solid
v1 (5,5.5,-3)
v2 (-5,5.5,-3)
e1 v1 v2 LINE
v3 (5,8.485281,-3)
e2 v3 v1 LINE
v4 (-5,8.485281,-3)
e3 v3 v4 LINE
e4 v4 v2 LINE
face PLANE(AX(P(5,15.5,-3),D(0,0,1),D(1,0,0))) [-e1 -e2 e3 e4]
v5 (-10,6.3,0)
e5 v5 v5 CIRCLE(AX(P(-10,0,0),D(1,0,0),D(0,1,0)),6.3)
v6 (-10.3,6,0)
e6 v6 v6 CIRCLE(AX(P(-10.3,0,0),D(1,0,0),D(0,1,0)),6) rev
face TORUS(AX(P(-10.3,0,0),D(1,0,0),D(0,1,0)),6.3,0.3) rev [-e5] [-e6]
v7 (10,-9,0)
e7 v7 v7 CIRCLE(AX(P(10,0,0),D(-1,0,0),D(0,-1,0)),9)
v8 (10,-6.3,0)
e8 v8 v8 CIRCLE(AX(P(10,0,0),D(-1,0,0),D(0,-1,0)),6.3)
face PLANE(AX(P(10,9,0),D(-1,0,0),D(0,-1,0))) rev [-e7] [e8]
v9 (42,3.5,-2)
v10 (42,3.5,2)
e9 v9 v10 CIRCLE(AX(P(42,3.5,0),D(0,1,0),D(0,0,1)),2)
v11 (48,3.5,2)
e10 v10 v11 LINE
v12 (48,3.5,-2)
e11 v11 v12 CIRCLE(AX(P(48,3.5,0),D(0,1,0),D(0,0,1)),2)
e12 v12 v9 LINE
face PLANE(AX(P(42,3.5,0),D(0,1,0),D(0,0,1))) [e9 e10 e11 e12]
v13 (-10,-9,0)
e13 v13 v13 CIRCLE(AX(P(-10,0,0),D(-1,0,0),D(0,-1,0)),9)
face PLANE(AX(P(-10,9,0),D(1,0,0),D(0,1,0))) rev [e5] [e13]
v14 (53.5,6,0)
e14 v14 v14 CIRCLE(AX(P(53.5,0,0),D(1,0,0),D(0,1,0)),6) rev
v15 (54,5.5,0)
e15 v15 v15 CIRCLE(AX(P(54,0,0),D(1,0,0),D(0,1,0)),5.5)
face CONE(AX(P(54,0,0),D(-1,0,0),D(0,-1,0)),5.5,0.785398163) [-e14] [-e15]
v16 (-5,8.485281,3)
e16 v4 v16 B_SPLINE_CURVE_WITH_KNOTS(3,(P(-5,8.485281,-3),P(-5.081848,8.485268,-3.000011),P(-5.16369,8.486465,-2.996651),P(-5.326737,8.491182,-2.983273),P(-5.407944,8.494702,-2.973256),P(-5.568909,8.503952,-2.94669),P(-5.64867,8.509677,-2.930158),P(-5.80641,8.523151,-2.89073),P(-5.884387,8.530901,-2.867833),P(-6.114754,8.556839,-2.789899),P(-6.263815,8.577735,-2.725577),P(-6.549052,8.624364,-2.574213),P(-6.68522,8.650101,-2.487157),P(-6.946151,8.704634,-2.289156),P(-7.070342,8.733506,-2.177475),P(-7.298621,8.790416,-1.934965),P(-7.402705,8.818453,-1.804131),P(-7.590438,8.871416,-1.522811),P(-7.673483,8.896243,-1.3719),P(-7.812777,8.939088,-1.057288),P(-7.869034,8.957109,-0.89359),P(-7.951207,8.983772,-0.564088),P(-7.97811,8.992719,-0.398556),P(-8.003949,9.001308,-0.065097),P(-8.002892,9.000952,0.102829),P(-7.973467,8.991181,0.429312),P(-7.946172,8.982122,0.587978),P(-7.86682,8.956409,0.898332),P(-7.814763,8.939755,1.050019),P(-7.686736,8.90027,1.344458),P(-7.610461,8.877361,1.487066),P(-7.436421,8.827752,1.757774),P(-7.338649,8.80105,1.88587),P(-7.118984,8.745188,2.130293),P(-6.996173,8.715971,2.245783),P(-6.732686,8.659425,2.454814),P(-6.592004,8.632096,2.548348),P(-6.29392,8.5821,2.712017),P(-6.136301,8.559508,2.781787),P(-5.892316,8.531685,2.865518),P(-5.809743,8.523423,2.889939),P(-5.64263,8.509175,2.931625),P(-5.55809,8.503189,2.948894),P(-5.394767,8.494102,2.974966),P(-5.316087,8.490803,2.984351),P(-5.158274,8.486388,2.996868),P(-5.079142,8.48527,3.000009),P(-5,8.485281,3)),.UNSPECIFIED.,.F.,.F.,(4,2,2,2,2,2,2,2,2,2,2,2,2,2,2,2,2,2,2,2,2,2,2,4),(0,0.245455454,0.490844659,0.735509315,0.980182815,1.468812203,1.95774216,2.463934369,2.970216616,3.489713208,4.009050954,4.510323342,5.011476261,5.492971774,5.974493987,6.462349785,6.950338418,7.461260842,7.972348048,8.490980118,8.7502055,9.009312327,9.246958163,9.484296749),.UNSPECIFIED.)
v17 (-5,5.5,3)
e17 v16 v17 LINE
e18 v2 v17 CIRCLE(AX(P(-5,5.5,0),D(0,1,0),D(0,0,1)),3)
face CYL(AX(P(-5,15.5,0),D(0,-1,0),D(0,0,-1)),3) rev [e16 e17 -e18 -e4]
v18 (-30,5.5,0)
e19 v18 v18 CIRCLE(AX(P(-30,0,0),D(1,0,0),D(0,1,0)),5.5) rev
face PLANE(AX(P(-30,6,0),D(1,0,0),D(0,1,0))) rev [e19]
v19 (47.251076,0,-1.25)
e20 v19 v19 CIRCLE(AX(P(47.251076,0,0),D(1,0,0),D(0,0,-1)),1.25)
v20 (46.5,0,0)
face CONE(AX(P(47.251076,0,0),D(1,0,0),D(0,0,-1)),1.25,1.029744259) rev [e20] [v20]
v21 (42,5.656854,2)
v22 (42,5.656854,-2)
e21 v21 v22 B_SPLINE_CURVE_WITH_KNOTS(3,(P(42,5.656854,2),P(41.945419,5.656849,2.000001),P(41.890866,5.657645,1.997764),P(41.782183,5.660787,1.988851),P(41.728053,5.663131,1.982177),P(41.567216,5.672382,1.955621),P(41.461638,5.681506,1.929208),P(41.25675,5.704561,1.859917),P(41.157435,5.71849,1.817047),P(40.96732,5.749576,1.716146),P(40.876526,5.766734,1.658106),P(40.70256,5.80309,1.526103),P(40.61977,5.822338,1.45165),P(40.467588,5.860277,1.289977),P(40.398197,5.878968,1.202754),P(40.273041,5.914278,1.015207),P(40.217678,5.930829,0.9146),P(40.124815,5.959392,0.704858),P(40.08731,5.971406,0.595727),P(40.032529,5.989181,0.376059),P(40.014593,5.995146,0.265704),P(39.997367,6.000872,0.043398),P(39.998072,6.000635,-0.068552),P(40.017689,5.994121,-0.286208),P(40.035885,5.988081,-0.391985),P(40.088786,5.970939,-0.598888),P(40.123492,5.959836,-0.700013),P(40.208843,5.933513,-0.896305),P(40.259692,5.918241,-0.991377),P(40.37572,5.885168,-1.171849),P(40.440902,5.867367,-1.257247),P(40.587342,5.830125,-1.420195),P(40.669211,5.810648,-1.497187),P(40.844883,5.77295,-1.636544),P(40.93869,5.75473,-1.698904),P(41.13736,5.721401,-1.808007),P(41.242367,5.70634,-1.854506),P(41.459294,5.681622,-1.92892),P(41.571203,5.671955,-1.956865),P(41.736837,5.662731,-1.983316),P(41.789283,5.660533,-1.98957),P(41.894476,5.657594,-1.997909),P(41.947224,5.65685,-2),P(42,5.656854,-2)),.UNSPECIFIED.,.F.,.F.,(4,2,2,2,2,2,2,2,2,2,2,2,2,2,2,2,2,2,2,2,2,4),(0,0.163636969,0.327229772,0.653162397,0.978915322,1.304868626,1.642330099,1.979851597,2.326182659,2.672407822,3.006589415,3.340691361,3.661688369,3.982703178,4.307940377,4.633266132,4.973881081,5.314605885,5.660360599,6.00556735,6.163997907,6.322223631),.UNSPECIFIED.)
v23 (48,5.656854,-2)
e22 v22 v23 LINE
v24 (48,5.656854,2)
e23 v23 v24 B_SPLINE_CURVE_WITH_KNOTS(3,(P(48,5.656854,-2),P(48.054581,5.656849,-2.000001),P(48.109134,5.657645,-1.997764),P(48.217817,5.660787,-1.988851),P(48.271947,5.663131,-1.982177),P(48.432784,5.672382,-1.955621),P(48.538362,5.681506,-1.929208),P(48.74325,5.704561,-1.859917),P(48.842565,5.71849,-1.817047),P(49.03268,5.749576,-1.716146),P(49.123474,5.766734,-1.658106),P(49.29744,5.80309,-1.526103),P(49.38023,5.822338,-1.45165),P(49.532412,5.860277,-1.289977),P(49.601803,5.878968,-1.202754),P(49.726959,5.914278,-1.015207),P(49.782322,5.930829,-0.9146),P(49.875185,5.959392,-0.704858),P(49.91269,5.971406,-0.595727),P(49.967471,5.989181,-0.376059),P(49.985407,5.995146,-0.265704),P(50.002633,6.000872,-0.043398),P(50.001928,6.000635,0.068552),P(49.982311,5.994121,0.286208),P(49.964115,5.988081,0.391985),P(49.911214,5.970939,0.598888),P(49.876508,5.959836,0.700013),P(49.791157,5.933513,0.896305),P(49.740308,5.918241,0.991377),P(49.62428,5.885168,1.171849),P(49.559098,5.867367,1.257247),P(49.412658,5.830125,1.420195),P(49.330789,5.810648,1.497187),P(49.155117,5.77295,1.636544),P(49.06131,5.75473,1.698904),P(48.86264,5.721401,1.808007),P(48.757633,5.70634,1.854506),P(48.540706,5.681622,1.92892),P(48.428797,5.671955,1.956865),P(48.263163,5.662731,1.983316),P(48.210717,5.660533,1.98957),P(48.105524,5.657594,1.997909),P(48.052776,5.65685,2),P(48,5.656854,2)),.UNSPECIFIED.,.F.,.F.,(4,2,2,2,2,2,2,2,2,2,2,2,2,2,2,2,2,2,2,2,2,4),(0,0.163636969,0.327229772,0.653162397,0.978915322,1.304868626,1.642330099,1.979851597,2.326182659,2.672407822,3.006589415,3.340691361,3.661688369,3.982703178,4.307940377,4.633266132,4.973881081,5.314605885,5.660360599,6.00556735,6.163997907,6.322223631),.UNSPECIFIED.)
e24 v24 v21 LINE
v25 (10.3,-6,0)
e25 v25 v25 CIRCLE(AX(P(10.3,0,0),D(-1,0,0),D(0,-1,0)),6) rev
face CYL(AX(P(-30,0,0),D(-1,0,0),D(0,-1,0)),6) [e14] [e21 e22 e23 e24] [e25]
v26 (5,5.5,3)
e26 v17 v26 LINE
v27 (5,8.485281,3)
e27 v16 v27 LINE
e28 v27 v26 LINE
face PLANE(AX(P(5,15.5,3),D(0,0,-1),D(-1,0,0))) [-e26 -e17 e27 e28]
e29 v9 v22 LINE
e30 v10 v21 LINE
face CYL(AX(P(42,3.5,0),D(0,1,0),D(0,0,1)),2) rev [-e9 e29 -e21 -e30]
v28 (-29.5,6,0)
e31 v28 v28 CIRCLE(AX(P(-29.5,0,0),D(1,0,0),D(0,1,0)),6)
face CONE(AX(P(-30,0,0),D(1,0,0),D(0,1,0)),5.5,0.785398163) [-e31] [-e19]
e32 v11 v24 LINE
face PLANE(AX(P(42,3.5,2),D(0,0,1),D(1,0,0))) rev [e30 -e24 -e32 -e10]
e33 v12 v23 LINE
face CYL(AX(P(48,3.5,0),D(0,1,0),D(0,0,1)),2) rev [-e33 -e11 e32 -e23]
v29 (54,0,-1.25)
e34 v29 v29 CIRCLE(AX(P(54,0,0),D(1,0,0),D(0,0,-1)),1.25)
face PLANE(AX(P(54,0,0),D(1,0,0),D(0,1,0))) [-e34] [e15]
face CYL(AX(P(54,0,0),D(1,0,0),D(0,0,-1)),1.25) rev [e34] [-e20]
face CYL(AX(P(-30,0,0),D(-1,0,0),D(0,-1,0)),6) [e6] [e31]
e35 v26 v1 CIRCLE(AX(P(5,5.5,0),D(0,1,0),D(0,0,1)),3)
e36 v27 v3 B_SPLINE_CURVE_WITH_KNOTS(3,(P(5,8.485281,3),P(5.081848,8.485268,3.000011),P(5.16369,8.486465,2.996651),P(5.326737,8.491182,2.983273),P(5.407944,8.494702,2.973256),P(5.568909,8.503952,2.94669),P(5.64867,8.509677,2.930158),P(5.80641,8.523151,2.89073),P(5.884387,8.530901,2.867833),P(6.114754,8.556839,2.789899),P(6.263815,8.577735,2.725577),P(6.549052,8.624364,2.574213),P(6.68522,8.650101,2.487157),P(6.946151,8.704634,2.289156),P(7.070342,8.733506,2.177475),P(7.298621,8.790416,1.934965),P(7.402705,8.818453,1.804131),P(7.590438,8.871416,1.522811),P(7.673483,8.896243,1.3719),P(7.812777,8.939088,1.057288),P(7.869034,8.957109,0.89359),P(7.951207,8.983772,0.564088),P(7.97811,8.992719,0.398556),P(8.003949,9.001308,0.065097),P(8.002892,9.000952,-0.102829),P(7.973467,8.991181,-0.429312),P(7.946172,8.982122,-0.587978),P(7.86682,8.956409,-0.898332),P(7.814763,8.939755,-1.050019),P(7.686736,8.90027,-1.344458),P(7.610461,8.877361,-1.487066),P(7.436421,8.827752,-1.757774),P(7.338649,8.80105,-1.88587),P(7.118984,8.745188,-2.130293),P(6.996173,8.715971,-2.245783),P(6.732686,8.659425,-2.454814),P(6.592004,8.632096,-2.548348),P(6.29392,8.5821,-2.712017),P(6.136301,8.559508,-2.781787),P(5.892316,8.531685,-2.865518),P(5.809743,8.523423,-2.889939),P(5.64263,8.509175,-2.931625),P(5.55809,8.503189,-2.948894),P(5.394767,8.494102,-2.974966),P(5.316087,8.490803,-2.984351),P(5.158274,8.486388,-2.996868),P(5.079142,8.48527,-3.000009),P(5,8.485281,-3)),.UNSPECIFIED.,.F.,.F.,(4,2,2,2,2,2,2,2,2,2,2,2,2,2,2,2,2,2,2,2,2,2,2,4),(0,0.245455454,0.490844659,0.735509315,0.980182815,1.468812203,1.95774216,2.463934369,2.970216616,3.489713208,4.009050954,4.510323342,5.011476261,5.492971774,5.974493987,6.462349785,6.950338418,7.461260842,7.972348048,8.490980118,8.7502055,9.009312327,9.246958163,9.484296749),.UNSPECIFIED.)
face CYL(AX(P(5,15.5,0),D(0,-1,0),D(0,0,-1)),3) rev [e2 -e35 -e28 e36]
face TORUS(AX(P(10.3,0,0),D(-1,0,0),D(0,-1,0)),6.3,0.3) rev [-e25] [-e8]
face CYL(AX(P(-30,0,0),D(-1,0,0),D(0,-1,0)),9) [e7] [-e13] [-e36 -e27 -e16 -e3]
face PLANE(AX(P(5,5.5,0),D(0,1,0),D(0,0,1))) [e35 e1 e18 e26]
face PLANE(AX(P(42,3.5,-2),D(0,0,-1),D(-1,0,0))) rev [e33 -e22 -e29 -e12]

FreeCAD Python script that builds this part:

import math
import FreeCAD as App
import Part
import Sketcher

V = App.Vector


def edges_at(feature, points):
    """Names of the edges that pass closest to the given points."""
    edges = feature.Shape.Edges
    near = lambda p: min(range(len(edges)), key=lambda i: edges[i].distToShape(Part.Vertex(*p))[0])
    return sorted({f"Edge{near(p) + 1}" for p in points})

doc = App.newDocument("Part")
body = doc.addObject("PartDesign::Body", "Body")

# Sketch on XY plane
sketch1 = doc.addObject("Sketcher::SketchObject", "Sketch")
body.addObject(sketch1)
sketch1.AttachmentSupport = (doc.XY_Plane, [""])
sketch1.MapMode = "FlatFace"
sketch1.addGeometry([
    Part.LineSegment(V(10, 9, 0), V(-10, 9, 0)),  # 0
    Part.LineSegment(V(-10, 9, 0), V(-10, 6, 0)),  # 1
    Part.LineSegment(V(-10, 6, 0), V(-30, 6, 0)),  # 2
    Part.LineSegment(V(-30, 6, 0), V(-30, 0, 0)),  # 3
    Part.LineSegment(V(-30, 0, 0), V(60, 0, 0)),  # 4
    Part.LineSegment(V(60, 0, 0), V(60, 6, 0)),  # 5
    Part.LineSegment(V(60, 6, 0), V(10, 6, 0)),  # 6
    Part.LineSegment(V(10, 6, 0), V(10, 9, 0)),  # 7
], False)
sketch1.addConstraint([
    Sketcher.Constraint("Coincident", 0, 2, 1, 1),
    Sketcher.Constraint("Coincident", 1, 2, 2, 1),
    Sketcher.Constraint("Coincident", 2, 2, 3, 1),
    Sketcher.Constraint("Coincident", 3, 2, 4, 1),
    Sketcher.Constraint("Coincident", 4, 2, 5, 1),
    Sketcher.Constraint("Coincident", 5, 2, 6, 1),
    Sketcher.Constraint("Coincident", 6, 2, 7, 1),
    Sketcher.Constraint("Coincident", 7, 2, 0, 1),
    Sketcher.Constraint("Horizontal", 0),
    Sketcher.Constraint("Vertical", 1),
    Sketcher.Constraint("Horizontal", 2),
    Sketcher.Constraint("Vertical", 3),
    Sketcher.Constraint("Horizontal", 4),
    Sketcher.Constraint("Vertical", 5),
    Sketcher.Constraint("Horizontal", 6),
    Sketcher.Constraint("Vertical", 7),
    Sketcher.Constraint("Symmetric", 1, 2, 6, 2, -2),
    Sketcher.Constraint("PointOnObject", 3, 2, -1),
    Sketcher.Constraint("Equal", 0, 2),
    Sketcher.Constraint("DistanceX", 0, 2, 0, 1, 20.0),
    Sketcher.Constraint("DistanceX", 4, 1, 4, 2, 90.0),
    Sketcher.Constraint("DistanceY", 1, 2, 1, 1, 3.0),
    Sketcher.Constraint("DistanceY", 3, 2, 3, 1, 6.0),
])
revolution = doc.addObject("PartDesign::Revolution", "Revolution")
body.addObject(revolution)
revolution.Profile = sketch1
revolution.ReferenceAxis = (sketch1, ["H_Axis"])
revolution.Angle = 360

# Sketch on XZ plane
sketch2 = doc.addObject("Sketcher::SketchObject", "Sketch001")
body.addObject(sketch2)
sketch2.AttachmentSupport = (doc.XZ_Plane, [""])
sketch2.MapMode = "FlatFace"
sketch2.AttachmentOffset = App.Placement(V(0, 0, -5.5), App.Rotation())
sketch2.addGeometry([
    Part.LineSegment(V(-5, 3, 0), V(5, 3, 0)),
    Part.ArcOfCircle(Part.Circle(V(5, 0, 0), V(0, 0, 1), 3), math.radians(-90), math.radians(90)),
    Part.LineSegment(V(5, -3, 0), V(-5, -3, 0)),
    Part.ArcOfCircle(Part.Circle(V(-5, 0, 0), V(0, 0, 1), 3), math.radians(90), math.radians(270)),
], False)
sketch2.addConstraint([
    Sketcher.Constraint("Tangent", 0, 2, 1, 2),
    Sketcher.Constraint("Tangent", 1, 1, 2, 1),
    Sketcher.Constraint("Tangent", 2, 2, 3, 2),
    Sketcher.Constraint("Tangent", 3, 1, 0, 1),
    Sketcher.Constraint("Horizontal", 0),
    Sketcher.Constraint("Horizontal", 2),
    Sketcher.Constraint("Symmetric", 1, 3, 3, 3, -1, 1),
    Sketcher.Constraint("Radius", 1, 3.0),
    Sketcher.Constraint("DistanceX", 0, 1, 0, 2, 10.0),
])
pocket1 = doc.addObject("PartDesign::Pocket", "Pocket")
body.addObject(pocket1)
pocket1.Profile = sketch2
pocket1.Length = 10

# Sketch on YZ plane
sketch3 = doc.addObject("Sketcher::SketchObject", "Sketch002")
body.addObject(sketch3)
sketch3.AttachmentSupport = (doc.YZ_Plane, [""])
sketch3.MapMode = "FlatFace"
sketch3.AttachmentOffset = App.Placement(V(0, 0, 60), App.Rotation())
sketch3.addGeometry(Part.Circle(V(0, 0, 0), V(0, 0, 1), 6), False)
sketch3.addConstraint([
    Sketcher.Constraint("Coincident", 0, 3, -1, 1),
    Sketcher.Constraint("Diameter", 0, 12.0),
])
pocket2 = doc.addObject("PartDesign::Pocket", "Pocket001")
body.addObject(pocket2)
pocket2.Profile = sketch3
pocket2.Length = 6

# Sketch on XZ plane
sketch4 = doc.addObject("Sketcher::SketchObject", "Sketch003")
body.addObject(sketch4)
sketch4.AttachmentSupport = (doc.XZ_Plane, [""])
sketch4.MapMode = "FlatFace"
sketch4.AttachmentOffset = App.Placement(V(0, 0, -6), App.Rotation())
sketch4.addGeometry([
    Part.LineSegment(V(48, -2, 0), V(42, -2, 0)),
    Part.ArcOfCircle(Part.Circle(V(42, 0, 0), V(0, 0, 1), 2), math.radians(90), math.radians(270)),
    Part.LineSegment(V(42, 2, 0), V(48, 2, 0)),
    Part.ArcOfCircle(Part.Circle(V(48, 0, 0), V(0, 0, 1), 2), math.radians(-90), math.radians(90)),
], False)
sketch4.addConstraint([
    Sketcher.Constraint("Tangent", 0, 2, 1, 2),
    Sketcher.Constraint("Tangent", 1, 1, 2, 1),
    Sketcher.Constraint("Tangent", 2, 2, 3, 2),
    Sketcher.Constraint("Tangent", 3, 1, 0, 1),
    Sketcher.Constraint("Horizontal", 0),
    Sketcher.Constraint("Horizontal", 2),
    Sketcher.Constraint("PointOnObject", 1, 3, -1),
    Sketcher.Constraint("Radius", 1, 2.0),
    Sketcher.Constraint("DistanceX", 0, 2, 0, 1, 6.0),
    Sketcher.Constraint("DistanceX", -1, 1, 1, 3, 42.0),
])
pocket3 = doc.addObject("PartDesign::Pocket", "Pocket002")
body.addObject(pocket3)
pocket3.Profile = sketch4
pocket3.Length = 2.5
pocket3.Reversed = True
doc.recompute()

fillet = doc.addObject("PartDesign::Fillet", "Fillet")
body.addObject(fillet)
fillet.Base = (pocket3, edges_at(pocket3, [(-10, -6, 0), (10, -6, 0)]))
fillet.Radius = 0.3
doc.recompute()

chamfer = doc.addObject("PartDesign::Chamfer", "Chamfer")
body.addObject(chamfer)
chamfer.Base = (fillet, edges_at(fillet, [(-30, -6, 0), (54, -6, 0)]))
chamfer.Size = 0.5

# Sketch on YZ plane
sketch5 = doc.addObject("Sketcher::SketchObject", "Sketch004")
body.addObject(sketch5)
sketch5.AttachmentSupport = (doc.YZ_Plane, [""])
sketch5.MapMode = "FlatFace"
sketch5.AttachmentOffset = App.Placement(V(0, 0, 54), App.Rotation())
sketch5.addGeometry(Part.Circle(V(0, 0, 0), V(0, 0, 1), 1.2), False)
sketch5.addConstraint([
    Sketcher.Constraint("Coincident", 0, 3, -1, 1),
    Sketcher.Constraint("Diameter", 0, 2.5),
])
doc.recompute()
hole = doc.addObject("PartDesign::Hole", "Hole")
body.addObject(hole)
hole.Profile = sketch5
hole.ThreadType = "None"
hole.Diameter = 2.5
hole.DepthType = "Dimension"
hole.Depth = 6.748924
hole.DrillPoint = "Angled"
hole.DrillPointAngle = 118

doc.recompute()
